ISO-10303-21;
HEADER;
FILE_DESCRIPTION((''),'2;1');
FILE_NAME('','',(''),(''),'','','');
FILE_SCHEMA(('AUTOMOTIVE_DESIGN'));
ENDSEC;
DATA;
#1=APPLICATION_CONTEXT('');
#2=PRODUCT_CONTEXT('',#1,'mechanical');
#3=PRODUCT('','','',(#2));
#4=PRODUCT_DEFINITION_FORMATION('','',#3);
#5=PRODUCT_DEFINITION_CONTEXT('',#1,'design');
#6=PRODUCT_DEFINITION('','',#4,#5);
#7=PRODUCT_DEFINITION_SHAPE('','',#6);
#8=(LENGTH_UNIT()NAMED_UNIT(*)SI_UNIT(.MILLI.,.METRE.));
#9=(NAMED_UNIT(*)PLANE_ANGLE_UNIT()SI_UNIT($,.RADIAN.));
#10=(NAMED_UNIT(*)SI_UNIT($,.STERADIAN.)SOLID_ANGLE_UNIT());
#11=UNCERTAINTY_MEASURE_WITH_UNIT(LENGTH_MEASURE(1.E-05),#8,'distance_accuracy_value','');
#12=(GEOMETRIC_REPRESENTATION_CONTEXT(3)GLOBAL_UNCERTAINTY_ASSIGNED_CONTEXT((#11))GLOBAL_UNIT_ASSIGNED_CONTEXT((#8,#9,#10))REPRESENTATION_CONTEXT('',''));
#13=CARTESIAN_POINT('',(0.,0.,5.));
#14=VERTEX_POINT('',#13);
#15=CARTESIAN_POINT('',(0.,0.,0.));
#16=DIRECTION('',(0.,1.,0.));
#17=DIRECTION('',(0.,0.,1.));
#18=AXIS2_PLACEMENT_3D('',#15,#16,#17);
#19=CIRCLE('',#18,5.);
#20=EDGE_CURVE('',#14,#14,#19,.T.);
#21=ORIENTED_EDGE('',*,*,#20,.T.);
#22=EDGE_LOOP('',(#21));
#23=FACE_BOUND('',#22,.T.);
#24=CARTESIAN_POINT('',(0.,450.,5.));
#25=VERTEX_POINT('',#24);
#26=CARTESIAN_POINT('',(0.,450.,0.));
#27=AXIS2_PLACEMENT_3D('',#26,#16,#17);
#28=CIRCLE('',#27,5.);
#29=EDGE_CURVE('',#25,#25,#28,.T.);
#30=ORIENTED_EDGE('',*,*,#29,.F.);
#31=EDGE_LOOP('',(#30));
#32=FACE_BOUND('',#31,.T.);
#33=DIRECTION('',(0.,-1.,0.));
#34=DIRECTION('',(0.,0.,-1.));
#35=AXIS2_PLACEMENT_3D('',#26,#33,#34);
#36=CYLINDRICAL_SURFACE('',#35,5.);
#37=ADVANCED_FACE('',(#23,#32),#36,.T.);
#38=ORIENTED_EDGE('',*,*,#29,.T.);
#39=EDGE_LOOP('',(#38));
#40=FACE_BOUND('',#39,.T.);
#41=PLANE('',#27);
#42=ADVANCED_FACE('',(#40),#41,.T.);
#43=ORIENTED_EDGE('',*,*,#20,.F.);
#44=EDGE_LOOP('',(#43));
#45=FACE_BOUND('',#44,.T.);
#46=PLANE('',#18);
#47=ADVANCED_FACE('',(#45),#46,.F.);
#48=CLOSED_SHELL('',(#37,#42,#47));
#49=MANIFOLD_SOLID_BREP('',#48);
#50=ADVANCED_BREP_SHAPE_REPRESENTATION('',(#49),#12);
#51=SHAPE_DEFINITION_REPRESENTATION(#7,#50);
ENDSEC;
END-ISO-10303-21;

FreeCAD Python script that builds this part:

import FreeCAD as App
import Part
import Sketcher
from FreeCAD import Vector

doc = App.newDocument("Part")
params = doc.addObject("Spreadsheet::Sheet", "Params")
for row, (alias, value) in enumerate([
    ("sketch1_diameter", "10 mm"),
    ("pad1_length", "450 mm"),
], start=1):
    params.set(f"A{row}", alias)
    params.set(f"B{row}", "=" + value)
    params.setAlias(f"B{row}", alias)

body = doc.addObject("PartDesign::Body", "Body")

# Sketch on XZ plane
sketch1 = body.newObject("Sketcher::SketchObject", "Sketch")
sketch1.AttachmentSupport = (doc.getObject("XZ_Plane"), [""])
sketch1.MapMode = "FlatFace"
sketch1.addGeometry(Part.Circle(Vector(0, 0, 0), Vector(0, 0, 1), 5), False)
sketch1.addConstraint([
    Sketcher.Constraint("Coincident", 0, 3, -1, 1),
    Sketcher.Constraint("Diameter", 0, 10.0),
])
sketch1.setExpression("Constraints[1]", "Params.sketch1_diameter")
pad1 = body.newObject("PartDesign::Pad", "Pad")
pad1.Profile = sketch1
pad1.setExpression("Length", "Params.pad1_length")
pad1.Reversed = True

doc.recompute()
